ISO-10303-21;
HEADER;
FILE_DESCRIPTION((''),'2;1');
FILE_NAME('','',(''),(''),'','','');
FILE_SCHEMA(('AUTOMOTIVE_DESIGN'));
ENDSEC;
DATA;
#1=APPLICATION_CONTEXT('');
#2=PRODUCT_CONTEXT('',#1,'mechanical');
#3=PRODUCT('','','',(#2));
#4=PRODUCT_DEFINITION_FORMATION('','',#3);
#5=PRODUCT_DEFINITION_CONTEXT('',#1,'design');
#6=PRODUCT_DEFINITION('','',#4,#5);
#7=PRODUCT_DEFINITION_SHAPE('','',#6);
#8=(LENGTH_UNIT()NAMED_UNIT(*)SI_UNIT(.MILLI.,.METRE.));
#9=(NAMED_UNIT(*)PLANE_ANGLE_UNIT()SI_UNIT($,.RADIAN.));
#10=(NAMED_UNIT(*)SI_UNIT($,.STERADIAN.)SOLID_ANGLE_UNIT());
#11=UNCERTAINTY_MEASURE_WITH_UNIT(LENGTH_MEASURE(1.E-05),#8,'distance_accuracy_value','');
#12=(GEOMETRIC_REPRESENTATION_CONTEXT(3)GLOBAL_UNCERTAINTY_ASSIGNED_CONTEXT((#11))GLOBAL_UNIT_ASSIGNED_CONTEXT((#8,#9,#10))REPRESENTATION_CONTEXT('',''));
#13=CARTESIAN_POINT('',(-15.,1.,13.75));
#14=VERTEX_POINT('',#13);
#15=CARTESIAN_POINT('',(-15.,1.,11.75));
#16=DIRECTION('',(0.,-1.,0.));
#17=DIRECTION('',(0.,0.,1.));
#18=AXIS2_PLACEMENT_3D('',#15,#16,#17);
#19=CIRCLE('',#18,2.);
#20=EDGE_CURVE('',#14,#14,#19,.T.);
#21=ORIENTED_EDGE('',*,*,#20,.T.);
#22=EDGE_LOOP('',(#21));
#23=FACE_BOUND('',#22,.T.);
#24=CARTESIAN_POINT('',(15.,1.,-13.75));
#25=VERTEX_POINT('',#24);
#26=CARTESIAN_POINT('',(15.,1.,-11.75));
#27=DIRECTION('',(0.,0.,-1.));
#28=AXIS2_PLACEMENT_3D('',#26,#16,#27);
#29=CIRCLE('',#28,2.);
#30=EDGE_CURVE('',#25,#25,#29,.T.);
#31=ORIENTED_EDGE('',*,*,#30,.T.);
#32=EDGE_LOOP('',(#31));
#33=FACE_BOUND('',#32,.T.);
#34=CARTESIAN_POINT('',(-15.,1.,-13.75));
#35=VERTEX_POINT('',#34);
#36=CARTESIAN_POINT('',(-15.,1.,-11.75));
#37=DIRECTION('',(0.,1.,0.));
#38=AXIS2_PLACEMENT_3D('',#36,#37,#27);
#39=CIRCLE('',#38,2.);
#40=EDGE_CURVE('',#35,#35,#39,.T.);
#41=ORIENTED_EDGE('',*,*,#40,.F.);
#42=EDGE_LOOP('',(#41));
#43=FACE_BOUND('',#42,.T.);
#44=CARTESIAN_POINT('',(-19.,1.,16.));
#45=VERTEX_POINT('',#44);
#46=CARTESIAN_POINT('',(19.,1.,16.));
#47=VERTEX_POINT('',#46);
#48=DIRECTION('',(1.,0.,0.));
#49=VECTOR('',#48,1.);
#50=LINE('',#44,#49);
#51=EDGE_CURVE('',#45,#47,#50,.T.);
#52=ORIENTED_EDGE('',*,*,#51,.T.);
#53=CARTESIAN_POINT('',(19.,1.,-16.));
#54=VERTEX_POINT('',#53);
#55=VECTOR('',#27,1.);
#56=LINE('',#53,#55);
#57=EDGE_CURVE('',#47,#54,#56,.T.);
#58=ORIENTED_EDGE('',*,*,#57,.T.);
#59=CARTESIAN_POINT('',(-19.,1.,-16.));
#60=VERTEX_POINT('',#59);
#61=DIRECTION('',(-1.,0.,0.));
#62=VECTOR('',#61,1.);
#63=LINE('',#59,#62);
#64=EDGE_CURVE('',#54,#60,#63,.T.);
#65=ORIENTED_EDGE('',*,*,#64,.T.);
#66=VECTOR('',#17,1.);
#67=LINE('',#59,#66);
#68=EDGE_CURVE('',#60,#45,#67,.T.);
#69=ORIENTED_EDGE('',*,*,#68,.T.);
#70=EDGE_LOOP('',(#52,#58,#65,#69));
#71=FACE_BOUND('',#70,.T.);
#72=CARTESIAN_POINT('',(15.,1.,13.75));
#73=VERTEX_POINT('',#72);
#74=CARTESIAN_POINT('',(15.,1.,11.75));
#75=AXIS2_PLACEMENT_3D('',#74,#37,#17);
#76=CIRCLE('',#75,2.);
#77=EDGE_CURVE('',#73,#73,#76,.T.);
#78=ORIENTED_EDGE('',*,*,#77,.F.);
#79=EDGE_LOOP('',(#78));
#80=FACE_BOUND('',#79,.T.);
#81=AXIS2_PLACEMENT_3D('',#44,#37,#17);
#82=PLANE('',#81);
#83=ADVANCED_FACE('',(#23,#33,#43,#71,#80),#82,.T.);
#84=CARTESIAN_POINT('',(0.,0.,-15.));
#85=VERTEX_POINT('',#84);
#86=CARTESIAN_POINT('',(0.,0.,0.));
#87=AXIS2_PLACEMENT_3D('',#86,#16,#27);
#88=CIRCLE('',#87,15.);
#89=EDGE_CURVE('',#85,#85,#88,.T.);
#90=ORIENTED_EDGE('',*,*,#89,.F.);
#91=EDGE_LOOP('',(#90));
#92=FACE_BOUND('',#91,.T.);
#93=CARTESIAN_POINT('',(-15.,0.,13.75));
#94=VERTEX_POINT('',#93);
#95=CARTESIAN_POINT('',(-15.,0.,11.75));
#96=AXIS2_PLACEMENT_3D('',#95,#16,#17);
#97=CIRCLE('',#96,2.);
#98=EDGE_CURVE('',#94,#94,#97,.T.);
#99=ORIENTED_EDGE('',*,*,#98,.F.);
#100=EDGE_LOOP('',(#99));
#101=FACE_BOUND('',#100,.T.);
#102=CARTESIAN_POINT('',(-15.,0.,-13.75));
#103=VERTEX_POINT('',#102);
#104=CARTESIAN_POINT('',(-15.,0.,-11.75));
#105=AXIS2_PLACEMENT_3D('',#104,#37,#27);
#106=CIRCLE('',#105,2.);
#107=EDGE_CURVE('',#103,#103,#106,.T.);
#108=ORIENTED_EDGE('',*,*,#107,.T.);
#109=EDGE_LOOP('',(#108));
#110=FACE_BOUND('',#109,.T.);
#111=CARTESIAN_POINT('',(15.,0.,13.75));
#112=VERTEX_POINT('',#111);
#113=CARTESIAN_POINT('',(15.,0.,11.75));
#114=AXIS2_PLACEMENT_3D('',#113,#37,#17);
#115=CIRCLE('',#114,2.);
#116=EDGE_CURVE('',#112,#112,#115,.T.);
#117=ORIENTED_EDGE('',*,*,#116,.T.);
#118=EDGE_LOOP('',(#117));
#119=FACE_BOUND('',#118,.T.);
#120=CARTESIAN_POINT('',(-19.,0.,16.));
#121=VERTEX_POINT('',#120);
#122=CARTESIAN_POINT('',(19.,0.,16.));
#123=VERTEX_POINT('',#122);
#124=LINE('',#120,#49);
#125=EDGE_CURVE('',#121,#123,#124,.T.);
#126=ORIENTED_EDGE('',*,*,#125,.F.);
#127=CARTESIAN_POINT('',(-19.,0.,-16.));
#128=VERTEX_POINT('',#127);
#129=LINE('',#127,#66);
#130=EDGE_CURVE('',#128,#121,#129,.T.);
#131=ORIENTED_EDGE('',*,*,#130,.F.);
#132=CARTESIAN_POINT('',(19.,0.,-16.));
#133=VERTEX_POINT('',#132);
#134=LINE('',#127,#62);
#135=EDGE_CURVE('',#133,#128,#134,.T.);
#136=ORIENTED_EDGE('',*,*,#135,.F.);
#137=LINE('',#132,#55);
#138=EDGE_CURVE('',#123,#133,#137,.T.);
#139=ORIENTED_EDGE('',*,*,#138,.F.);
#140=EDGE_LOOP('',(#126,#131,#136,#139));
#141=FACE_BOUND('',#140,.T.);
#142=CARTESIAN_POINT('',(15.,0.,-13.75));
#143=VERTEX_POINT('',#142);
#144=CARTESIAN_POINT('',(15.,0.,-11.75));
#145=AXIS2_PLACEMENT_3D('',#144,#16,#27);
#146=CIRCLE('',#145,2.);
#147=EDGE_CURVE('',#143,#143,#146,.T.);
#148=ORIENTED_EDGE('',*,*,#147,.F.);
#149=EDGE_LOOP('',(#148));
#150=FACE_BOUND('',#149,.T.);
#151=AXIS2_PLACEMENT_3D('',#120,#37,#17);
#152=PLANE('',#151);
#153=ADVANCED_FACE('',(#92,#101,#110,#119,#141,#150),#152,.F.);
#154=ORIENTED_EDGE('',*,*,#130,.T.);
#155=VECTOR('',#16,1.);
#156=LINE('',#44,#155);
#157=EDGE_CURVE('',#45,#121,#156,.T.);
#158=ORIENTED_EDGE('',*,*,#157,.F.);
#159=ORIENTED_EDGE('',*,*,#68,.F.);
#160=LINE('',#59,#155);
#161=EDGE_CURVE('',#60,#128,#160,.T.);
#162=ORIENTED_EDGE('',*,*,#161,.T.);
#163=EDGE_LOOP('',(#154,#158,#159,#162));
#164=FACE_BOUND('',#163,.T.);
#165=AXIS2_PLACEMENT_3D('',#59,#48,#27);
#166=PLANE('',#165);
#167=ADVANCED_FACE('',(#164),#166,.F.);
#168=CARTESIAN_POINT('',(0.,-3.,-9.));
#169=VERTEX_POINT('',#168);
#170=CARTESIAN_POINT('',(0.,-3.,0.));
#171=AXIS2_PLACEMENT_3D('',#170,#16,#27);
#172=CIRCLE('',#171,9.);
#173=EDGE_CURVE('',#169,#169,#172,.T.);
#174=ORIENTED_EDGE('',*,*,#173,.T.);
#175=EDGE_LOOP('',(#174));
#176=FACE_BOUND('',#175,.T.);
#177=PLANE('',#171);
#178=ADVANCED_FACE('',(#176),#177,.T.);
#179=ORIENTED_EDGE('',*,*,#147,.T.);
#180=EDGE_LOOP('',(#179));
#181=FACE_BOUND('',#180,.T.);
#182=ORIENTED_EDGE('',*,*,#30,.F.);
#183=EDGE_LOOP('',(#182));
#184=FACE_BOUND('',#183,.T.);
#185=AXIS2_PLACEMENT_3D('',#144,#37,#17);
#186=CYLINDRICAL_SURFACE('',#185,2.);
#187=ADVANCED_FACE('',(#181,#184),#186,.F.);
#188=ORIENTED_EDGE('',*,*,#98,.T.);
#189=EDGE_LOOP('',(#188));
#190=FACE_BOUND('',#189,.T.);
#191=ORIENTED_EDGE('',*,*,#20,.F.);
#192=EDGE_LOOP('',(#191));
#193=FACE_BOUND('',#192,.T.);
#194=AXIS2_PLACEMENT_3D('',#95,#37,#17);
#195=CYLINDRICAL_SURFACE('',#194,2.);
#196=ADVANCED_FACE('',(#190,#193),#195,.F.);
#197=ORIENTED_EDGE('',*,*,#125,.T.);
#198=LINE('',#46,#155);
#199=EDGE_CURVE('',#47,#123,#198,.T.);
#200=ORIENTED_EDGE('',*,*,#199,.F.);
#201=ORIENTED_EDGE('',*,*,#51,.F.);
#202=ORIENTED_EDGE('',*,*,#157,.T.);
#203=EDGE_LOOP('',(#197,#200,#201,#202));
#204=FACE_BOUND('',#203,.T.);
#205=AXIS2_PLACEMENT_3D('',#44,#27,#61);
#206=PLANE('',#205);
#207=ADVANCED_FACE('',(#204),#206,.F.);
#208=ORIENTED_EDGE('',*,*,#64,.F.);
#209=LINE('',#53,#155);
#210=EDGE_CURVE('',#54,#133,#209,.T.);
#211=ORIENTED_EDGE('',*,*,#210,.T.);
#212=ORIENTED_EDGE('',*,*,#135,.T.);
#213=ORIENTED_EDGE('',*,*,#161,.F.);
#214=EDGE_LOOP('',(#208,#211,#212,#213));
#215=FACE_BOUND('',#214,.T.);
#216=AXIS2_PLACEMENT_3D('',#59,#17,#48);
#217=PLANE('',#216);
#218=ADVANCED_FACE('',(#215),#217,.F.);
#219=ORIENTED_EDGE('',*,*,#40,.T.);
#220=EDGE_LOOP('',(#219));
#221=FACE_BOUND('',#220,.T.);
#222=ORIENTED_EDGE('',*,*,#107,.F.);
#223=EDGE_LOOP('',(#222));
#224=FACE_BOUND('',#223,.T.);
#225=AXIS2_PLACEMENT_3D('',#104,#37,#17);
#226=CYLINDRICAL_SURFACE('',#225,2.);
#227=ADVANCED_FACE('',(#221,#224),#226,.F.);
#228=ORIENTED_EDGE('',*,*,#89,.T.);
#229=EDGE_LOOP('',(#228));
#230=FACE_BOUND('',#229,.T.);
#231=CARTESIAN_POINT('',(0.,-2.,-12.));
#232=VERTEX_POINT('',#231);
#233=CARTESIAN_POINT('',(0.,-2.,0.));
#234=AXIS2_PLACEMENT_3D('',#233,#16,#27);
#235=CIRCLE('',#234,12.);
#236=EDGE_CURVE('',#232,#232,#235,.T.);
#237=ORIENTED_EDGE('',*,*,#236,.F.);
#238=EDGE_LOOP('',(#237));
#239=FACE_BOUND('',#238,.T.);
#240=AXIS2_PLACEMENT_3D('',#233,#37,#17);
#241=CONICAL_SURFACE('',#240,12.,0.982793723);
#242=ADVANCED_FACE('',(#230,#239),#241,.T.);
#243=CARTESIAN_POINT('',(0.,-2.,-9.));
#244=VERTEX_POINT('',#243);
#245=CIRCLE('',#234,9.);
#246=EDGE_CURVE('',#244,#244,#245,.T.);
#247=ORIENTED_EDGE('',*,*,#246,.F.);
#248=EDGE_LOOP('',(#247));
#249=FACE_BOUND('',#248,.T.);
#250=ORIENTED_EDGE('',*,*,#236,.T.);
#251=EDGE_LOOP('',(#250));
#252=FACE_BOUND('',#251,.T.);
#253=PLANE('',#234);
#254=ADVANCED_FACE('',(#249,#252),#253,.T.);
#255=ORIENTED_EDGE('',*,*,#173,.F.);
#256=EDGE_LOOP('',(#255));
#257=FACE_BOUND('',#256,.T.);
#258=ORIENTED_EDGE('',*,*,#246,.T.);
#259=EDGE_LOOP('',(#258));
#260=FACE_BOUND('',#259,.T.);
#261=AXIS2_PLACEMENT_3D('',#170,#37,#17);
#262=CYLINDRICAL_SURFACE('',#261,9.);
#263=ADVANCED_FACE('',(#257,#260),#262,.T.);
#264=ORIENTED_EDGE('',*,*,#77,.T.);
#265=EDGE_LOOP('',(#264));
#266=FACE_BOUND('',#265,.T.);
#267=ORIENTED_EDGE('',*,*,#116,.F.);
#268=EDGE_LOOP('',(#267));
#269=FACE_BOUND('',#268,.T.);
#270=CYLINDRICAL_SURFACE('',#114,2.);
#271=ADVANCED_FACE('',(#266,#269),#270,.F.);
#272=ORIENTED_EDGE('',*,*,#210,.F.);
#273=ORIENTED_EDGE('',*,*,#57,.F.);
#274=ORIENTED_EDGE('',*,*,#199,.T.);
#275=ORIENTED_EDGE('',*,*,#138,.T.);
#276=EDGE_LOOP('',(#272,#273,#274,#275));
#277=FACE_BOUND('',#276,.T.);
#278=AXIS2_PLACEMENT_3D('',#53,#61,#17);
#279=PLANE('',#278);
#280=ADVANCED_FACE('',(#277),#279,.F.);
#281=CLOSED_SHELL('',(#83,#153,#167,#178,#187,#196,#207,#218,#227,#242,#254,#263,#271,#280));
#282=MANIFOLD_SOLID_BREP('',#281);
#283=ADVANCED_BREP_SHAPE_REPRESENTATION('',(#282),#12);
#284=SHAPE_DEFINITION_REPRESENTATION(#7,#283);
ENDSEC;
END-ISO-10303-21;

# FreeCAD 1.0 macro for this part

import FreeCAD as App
import Part
import Sketcher
from FreeCAD import Vector

doc = App.newDocument("Part")
body = doc.addObject("PartDesign::Body", "Body")

# Sketch on XZ plane
sketch1 = body.newObject("Sketcher::SketchObject", "Sketch")
sketch1.AttachmentSupport = (doc.getObject("XZ_Plane"), [""])
sketch1.MapMode = "FlatFace"
sketch1.addGeometry(Part.LineSegment(Vector(-19, -16, 0), Vector(-19, 16, 0)), False)
sketch1.addGeometry(Part.LineSegment(Vector(-19, 16, 0), Vector(19, 16, 0)), False)
sketch1.addGeometry(Part.LineSegment(Vector(19, 16, 0), Vector(19, -16, 0)), False)
sketch1.addGeometry(Part.LineSegment(Vector(19, -16, 0), Vector(-19, -16, 0)), False)
sketch1.addConstraint(Sketcher.Constraint("Coincident", 0, 2, 1, 1))
sketch1.addConstraint(Sketcher.Constraint("Coincident", 1, 2, 2, 1))
sketch1.addConstraint(Sketcher.Constraint("Coincident", 2, 2, 3, 1))
sketch1.addConstraint(Sketcher.Constraint("Coincident", 3, 2, 0, 1))
sketch1.addConstraint(Sketcher.Constraint("Vertical", 0))
sketch1.addConstraint(Sketcher.Constraint("Horizontal", 1))
sketch1.addConstraint(Sketcher.Constraint("Vertical", 2))
sketch1.addConstraint(Sketcher.Constraint("Horizontal", 3))
sketch1.addConstraint(Sketcher.Constraint("Symmetric", 0, 2, 2, 2, -1, 1))
sketch1.addConstraint(Sketcher.Constraint("DistanceX", 1, 1, 1, 2, 38.0))
sketch1.addConstraint(Sketcher.Constraint("DistanceY", 0, 1, 0, 2, 32.0))
pad1 = body.newObject("PartDesign::Pad", "Pad")
pad1.Profile = sketch1
pad1.Length = 1
pad1.Reversed = True

# Sketch on XZ plane
sketch2 = body.newObject("Sketcher::SketchObject", "Sketch001")
sketch2.AttachmentSupport = (doc.getObject("XZ_Plane"), [""])
sketch2.MapMode = "FlatFace"
sketch2.AttachmentOffset = App.Placement(Vector(0, 0, -1), App.Rotation())
sketch2.addGeometry(Part.Circle(Vector(15, 11.8, 0), Vector(0, 0, 1), 2), False)
sketch2.addConstraint(Sketcher.Constraint("Diameter", 0, 4.0))
sketch2.addConstraint(Sketcher.Constraint("DistanceX", -1, 1, 0, 3, 15.0))
sketch2.addConstraint(Sketcher.Constraint("DistanceY", -1, 1, 0, 3, 11.75))
pocket1 = body.newObject("PartDesign::Pocket", "Pocket")
pocket1.Profile = sketch2
pocket1.Length = 1
pocket1.Reversed = True
doc.recompute()

mirrored = body.newObject("PartDesign::Mirrored", "Mirrored")
mirrored.Originals = [pocket1]
mirrored.MirrorPlane = (doc.getObject("YZ_Plane"), [""])
body.Tip = mirrored
doc.recompute()

mirrored2 = body.newObject("PartDesign::Mirrored", "Mirrored001")
mirrored2.Originals = [pocket1]
mirrored2.MirrorPlane = (doc.getObject("XY_Plane"), [""])
body.Tip = mirrored2

# Sketch on XZ plane
sketch3 = body.newObject("Sketcher::SketchObject", "Sketch002")
sketch3.AttachmentSupport = (doc.getObject("XZ_Plane"), [""])
sketch3.MapMode = "FlatFace"
sketch3.AttachmentOffset = App.Placement(Vector(0, 0, -1), App.Rotation())
sketch3.addGeometry(Part.Circle(Vector(-15, -11.8, 0), Vector(0, 0, 1), 2), False)
sketch3.addConstraint(Sketcher.Constraint("Diameter", 0, 4.0))
sketch3.addConstraint(Sketcher.Constraint("DistanceX", 0, 3, -1, 1, 15.0))
sketch3.addConstraint(Sketcher.Constraint("DistanceY", 0, 3, -1, 1, 11.75))
pocket2 = body.newObject("PartDesign::Pocket", "Pocket001")
pocket2.Profile = sketch3
pocket2.Length = 1
pocket2.Reversed = True

# Sketch on XZ plane
sketch4 = body.newObject("Sketcher::SketchObject", "Sketch003")
sketch4.AttachmentSupport = (doc.getObject("XZ_Plane"), [""])
sketch4.MapMode = "FlatFace"
sketch4.addGeometry(Part.Circle(Vector(0, 0, 0), Vector(0, 0, 1), 15), False)
sketch4.addConstraint(Sketcher.Constraint("Coincident", 0, 3, -1, 1))
sketch4.addConstraint(Sketcher.Constraint("Diameter", 0, 30.0))

# Sketch on XZ plane
sketch5 = body.newObject("Sketcher::SketchObject", "Sketch004")
sketch5.AttachmentSupport = (doc.getObject("XZ_Plane"), [""])
sketch5.MapMode = "FlatFace"
sketch5.AttachmentOffset = App.Placement(Vector(0, 0, 2), App.Rotation())
sketch5.addGeometry(Part.Circle(Vector(0, 0, 0), Vector(0, 0, 1), 12), False)
sketch5.addConstraint(Sketcher.Constraint("Coincident", 0, 3, -1, 1))
sketch5.addConstraint(Sketcher.Constraint("Diameter", 0, 24.0))

additiveloft = body.newObject("PartDesign::AdditiveLoft", "AdditiveLoft")
additiveloft.Profile = sketch4
additiveloft.Sections = [sketch5]

# Sketch on XZ plane
sketch6 = body.newObject("Sketcher::SketchObject", "Sketch005")
sketch6.AttachmentSupport = (doc.getObject("XZ_Plane"), [""])
sketch6.MapMode = "FlatFace"
sketch6.AttachmentOffset = App.Placement(Vector(0, 0, 2), App.Rotation())
sketch6.addGeometry(Part.Circle(Vector(0, 0, 0), Vector(0, 0, 1), 9), False)
sketch6.addConstraint(Sketcher.Constraint("Coincident", 0, 3, -1, 1))
sketch6.addConstraint(Sketcher.Constraint("Diameter", 0, 18.0))
pad2 = body.newObject("PartDesign::Pad", "Pad001")
pad2.Profile = sketch6
pad2.Length = 1

doc.recompute()
